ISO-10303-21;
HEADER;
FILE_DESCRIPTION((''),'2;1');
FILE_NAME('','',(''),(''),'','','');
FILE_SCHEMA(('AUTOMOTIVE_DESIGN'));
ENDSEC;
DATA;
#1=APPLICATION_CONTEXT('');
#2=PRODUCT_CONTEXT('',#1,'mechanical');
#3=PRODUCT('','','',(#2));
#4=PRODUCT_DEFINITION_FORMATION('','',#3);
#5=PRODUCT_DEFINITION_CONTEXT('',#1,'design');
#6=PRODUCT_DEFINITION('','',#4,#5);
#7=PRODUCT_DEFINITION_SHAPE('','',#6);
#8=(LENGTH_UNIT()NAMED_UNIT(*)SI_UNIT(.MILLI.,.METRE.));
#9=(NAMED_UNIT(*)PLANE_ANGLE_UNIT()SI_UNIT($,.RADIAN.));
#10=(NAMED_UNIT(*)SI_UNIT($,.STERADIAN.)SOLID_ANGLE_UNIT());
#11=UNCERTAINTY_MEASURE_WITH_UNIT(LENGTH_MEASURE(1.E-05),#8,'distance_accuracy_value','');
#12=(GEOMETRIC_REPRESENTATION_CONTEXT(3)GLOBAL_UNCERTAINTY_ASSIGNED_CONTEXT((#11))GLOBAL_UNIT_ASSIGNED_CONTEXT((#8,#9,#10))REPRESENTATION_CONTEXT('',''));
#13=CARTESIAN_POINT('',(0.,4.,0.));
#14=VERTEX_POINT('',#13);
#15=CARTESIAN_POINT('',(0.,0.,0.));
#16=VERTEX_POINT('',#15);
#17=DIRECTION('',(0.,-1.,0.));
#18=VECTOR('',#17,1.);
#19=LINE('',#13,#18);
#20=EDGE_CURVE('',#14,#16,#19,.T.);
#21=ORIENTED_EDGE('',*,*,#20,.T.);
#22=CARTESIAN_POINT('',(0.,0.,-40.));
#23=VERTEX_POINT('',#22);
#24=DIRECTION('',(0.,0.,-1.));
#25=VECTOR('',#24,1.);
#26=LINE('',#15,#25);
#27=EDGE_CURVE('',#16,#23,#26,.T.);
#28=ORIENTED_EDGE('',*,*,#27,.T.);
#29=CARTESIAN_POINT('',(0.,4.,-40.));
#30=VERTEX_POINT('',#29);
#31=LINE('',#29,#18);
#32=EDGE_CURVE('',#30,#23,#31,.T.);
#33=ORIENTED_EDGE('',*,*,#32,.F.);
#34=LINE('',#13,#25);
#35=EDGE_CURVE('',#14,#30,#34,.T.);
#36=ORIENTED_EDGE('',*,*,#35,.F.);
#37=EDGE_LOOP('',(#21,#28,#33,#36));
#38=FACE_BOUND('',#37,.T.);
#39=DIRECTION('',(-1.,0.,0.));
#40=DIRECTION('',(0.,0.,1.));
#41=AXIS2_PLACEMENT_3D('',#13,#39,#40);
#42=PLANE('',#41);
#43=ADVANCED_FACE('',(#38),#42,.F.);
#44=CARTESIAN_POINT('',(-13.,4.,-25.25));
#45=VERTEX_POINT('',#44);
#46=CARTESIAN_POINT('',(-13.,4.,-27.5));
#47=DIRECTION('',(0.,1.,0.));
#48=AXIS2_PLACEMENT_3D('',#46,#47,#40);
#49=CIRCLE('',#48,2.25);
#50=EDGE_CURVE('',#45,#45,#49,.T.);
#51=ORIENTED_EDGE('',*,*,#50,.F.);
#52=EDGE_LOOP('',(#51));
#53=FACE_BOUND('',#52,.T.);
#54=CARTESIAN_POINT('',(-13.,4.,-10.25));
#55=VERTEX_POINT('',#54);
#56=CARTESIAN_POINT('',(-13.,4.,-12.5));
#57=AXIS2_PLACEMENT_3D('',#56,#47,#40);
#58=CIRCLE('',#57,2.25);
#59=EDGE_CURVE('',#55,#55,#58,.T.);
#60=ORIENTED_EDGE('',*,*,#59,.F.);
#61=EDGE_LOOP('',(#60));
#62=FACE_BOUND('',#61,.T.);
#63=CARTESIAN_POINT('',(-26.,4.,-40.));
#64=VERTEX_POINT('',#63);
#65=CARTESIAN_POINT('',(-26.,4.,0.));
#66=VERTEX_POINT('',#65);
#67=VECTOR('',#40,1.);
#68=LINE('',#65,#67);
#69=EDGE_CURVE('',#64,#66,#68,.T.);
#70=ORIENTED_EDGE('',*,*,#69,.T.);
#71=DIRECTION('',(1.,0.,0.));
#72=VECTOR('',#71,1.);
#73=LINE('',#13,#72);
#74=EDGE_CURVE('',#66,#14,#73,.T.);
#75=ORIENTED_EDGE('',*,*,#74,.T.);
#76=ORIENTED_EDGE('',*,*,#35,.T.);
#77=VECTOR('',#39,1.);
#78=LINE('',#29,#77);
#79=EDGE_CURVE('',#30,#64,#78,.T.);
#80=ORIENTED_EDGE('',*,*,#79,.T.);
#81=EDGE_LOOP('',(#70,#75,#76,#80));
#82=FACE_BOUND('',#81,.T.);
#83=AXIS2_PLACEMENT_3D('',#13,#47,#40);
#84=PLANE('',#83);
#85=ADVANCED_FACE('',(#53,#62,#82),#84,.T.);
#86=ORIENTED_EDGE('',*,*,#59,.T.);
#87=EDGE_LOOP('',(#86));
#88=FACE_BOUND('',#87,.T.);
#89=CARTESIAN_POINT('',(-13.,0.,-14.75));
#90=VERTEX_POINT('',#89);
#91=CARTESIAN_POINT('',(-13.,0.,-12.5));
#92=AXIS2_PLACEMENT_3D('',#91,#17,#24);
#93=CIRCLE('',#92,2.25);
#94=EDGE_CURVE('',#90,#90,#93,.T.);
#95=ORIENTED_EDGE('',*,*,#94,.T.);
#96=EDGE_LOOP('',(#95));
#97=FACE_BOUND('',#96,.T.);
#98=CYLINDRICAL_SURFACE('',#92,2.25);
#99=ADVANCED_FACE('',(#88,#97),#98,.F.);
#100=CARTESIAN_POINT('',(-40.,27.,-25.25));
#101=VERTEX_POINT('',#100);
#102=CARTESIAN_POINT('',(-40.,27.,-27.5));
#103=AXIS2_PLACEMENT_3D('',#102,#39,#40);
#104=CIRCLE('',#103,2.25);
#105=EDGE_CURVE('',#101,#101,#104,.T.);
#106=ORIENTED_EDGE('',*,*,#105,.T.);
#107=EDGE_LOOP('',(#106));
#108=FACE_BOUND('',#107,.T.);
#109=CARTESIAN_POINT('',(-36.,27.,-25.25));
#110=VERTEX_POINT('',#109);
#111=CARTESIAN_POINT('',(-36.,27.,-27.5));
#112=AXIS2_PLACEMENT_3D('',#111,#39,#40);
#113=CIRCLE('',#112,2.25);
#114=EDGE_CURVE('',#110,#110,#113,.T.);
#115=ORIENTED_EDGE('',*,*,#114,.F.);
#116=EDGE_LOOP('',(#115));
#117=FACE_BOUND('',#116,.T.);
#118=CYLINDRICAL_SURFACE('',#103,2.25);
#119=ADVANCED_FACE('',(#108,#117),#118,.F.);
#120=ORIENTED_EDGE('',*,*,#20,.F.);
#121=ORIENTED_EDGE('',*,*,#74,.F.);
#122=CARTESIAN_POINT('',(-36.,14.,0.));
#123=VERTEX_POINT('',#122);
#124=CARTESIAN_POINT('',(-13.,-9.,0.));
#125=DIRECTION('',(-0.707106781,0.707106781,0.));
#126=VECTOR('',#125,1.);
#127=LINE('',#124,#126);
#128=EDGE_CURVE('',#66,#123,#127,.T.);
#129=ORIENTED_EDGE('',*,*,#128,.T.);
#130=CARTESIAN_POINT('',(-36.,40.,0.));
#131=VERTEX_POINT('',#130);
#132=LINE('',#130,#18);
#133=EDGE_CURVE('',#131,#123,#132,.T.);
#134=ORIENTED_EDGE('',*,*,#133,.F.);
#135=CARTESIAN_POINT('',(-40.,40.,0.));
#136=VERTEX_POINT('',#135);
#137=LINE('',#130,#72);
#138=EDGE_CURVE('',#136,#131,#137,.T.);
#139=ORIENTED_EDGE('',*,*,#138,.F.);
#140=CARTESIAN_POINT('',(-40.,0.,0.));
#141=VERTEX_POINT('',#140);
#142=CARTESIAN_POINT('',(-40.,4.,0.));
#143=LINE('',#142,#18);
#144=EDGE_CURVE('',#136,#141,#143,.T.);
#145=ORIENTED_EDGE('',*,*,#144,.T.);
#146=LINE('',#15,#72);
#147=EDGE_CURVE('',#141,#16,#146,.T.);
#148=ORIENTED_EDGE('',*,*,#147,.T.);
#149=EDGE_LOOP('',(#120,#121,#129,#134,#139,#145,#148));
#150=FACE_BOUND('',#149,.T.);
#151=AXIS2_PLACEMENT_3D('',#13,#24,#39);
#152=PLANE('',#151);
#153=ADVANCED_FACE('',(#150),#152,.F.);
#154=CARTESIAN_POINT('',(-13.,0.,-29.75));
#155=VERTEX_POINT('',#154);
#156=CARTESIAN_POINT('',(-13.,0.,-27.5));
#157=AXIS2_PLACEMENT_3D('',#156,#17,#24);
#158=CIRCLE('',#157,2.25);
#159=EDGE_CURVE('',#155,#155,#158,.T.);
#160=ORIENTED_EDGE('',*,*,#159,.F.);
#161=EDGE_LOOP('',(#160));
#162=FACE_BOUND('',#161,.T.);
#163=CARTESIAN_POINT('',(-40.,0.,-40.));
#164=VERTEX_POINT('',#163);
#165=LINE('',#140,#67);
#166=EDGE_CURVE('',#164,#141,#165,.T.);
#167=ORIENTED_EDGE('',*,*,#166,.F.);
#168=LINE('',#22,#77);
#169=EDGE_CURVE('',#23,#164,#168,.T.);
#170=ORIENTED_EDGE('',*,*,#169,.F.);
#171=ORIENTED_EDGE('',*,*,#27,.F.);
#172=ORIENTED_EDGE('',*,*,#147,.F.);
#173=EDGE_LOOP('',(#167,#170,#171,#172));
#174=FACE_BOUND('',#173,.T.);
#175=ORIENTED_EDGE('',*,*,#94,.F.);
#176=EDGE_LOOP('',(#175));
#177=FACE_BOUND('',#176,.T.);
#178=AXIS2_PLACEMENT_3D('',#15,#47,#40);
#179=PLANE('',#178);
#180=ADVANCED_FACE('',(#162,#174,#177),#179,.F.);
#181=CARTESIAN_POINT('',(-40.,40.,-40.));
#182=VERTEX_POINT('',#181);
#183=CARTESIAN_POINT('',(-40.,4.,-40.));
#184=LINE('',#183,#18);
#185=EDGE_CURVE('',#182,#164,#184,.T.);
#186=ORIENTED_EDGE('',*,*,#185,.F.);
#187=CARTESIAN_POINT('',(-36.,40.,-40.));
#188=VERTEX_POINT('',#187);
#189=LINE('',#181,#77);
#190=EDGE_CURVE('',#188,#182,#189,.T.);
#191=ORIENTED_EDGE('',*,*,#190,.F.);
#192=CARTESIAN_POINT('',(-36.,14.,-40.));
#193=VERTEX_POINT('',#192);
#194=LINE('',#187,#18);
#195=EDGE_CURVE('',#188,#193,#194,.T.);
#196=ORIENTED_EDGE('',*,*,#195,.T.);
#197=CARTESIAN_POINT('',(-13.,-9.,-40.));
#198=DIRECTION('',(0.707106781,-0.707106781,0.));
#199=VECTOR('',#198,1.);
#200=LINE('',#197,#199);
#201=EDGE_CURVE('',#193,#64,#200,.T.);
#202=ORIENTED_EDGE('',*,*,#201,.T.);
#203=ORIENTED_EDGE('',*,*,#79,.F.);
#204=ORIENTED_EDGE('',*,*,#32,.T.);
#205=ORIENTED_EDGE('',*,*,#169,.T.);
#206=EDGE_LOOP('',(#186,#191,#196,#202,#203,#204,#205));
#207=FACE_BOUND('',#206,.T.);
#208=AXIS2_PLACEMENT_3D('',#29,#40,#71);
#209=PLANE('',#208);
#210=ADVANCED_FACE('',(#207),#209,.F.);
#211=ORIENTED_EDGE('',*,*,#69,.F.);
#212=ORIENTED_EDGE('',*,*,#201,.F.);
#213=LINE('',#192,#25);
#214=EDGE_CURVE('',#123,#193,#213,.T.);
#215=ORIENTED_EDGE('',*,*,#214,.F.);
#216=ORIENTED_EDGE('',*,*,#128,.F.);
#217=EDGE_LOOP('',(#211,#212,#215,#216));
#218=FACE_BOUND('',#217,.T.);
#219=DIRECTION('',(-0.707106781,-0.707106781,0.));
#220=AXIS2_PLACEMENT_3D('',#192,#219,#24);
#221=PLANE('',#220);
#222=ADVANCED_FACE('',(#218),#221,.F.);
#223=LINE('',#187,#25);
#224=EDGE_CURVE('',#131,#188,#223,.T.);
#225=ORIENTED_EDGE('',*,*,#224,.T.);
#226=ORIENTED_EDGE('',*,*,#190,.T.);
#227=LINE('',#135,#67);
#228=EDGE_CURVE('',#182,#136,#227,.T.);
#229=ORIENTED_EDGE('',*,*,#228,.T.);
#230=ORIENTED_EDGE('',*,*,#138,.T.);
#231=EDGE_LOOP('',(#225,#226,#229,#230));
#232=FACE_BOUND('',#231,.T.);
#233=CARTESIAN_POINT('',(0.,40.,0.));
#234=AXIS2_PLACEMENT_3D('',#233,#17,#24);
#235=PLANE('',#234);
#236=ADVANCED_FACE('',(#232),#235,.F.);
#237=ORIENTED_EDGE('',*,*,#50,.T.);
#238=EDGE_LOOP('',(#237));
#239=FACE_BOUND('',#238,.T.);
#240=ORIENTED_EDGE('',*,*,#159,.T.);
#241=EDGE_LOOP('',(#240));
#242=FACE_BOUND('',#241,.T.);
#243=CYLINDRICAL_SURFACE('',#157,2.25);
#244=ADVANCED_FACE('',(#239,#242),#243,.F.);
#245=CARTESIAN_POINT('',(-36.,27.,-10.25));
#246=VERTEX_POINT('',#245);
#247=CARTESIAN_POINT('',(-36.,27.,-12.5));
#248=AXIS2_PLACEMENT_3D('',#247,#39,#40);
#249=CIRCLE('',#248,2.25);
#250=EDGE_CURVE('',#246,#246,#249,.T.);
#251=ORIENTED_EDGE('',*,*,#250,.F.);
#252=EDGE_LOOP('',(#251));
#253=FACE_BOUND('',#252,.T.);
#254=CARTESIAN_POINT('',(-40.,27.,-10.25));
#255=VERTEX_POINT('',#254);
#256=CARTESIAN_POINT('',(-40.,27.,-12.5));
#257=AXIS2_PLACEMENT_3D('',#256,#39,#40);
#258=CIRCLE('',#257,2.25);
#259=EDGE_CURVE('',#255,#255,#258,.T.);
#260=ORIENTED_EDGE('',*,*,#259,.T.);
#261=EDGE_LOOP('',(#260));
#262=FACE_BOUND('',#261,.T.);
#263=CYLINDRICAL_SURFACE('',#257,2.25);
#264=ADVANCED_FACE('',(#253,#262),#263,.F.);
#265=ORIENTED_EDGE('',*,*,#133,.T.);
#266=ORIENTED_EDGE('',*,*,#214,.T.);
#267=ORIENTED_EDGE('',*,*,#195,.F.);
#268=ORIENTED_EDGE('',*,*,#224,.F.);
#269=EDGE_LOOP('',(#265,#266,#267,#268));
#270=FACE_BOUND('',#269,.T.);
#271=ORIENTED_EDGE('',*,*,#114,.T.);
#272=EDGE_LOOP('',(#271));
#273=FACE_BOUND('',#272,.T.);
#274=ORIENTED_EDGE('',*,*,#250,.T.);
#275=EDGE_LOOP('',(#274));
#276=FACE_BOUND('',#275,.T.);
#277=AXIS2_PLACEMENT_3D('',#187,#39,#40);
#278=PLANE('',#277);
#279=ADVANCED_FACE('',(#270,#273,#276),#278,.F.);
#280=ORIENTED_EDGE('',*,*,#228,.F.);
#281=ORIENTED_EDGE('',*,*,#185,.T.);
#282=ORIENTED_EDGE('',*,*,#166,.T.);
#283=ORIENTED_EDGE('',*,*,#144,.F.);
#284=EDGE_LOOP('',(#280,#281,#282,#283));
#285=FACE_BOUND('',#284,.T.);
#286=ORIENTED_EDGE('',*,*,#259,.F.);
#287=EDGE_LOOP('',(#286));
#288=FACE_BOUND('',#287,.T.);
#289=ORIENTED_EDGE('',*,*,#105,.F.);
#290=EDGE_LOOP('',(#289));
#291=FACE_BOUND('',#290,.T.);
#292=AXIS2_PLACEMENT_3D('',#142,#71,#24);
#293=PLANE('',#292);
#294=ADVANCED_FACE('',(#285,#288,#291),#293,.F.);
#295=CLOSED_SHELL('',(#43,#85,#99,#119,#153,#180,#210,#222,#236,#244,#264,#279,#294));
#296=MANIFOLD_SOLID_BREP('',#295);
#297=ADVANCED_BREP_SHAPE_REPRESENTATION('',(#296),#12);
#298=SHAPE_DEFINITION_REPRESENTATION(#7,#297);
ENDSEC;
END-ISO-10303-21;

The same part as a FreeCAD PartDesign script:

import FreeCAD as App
import Part
import Sketcher
from FreeCAD import Vector
Q = App.Units.Quantity


def edges_at(feature, points):
    """Names of the edges that pass closest to the given points."""
    edges = feature.Shape.Edges
    near = lambda p: min(range(len(edges)), key=lambda i: edges[i].distToShape(Part.Vertex(*p))[0])
    return sorted({f"Edge{near(p) + 1}" for p in points})


def add_polygon(sketch, points):
    """Adds a closed chain of lines whose ends are joined by coincident constraints."""
    first, n = sketch.GeometryCount, len(points)
    for a, b in zip(points, points[1:] + points[:1]):
        sketch.addGeometry(Part.LineSegment(App.Vector(*a, 0), App.Vector(*b, 0)), False)
    for i in range(n):
        sketch.addConstraint(Sketcher.Constraint("Coincident", first + i, 2, first + (i + 1) % n, 1))

doc = App.newDocument("Part")
body = doc.addObject("PartDesign::Body", "Body")

# Sketch on XZ plane
sketch1 = body.newObject("Sketcher::SketchObject", "Sketch")
sketch1.AttachmentSupport = (doc.getObject("XZ_Plane"), [""])
sketch1.MapMode = "FlatFace"
add_polygon(sketch1, [(-40, -40), (-40, 0), (0, 0), (0, -40)])  # lines 0-3
sketch1.addConstraint(Sketcher.Constraint("Vertical", 0))
sketch1.addConstraint(Sketcher.Constraint("Horizontal", 1))
sketch1.addConstraint(Sketcher.Constraint("Vertical", 2))
sketch1.addConstraint(Sketcher.Constraint("Horizontal", 3))
sketch1.addConstraint(Sketcher.Constraint("Coincident", 1, 2, -1, 1))
sketch1.addConstraint(Sketcher.Constraint("Equal", 3, 0))
sketch1.addConstraint(Sketcher.Constraint("DistanceX", 1, 1, 1, 2, Q("40 mm")))
pad1 = body.newObject("PartDesign::Pad", "Pad")
pad1.Profile = sketch1
pad1.Length = 4
pad1.Reversed = True

# Sketch on XZ plane
sketch2 = body.newObject("Sketcher::SketchObject", "Sketch001")
sketch2.AttachmentSupport = (doc.getObject("XZ_Plane"), [""])
sketch2.MapMode = "FlatFace"
sketch2.AttachmentOffset = App.Placement(Vector(0, 0, -4), App.Rotation())
add_polygon(sketch2, [(-40, -40), (-40, 0), (-36, 0), (-36, -40)])  # lines 0-3
sketch2.addConstraint(Sketcher.Constraint("Vertical", 0))
sketch2.addConstraint(Sketcher.Constraint("Horizontal", 1))
sketch2.addConstraint(Sketcher.Constraint("Vertical", 2))
sketch2.addConstraint(Sketcher.Constraint("Horizontal", 3))
sketch2.addConstraint(Sketcher.Constraint("PointOnObject", 0, 2, -1))
sketch2.addConstraint(Sketcher.Constraint("DistanceX", 1, 1, 1, 2, Q("4 mm")))
sketch2.addConstraint(Sketcher.Constraint("DistanceY", 0, 1, 0, 2, Q("40 mm")))
sketch2.addConstraint(Sketcher.Constraint("DistanceX", 0, 2, -1, 1, Q("40 mm")))
pad2 = body.newObject("PartDesign::Pad", "Pad001")
pad2.Profile = sketch2
pad2.Length = 36
pad2.Reversed = True
doc.recompute()

chamfer = body.newObject("PartDesign::Chamfer", "Chamfer")
chamfer.Base = (pad2, edges_at(pad2, [(-36, 4, -20)]))
chamfer.Size = 10

# Sketch on XZ plane
sketch3 = body.newObject("Sketcher::SketchObject", "Sketch002")
sketch3.AttachmentSupport = (doc.getObject("XZ_Plane"), [""])
sketch3.MapMode = "FlatFace"
sketch3.addGeometry(Part.Circle(Vector(-13, -27.5, 0), Vector(0, 0, 1), 2.2), False)
sketch3.addGeometry(Part.Circle(Vector(-13, -12.5, 0), Vector(0, 0, 1), 2.2), False)
sketch3.addConstraint(Sketcher.Constraint("Equal", 0, 1))
sketch3.addConstraint(Sketcher.Constraint("Vertical", 0, 3, 1, 3))
sketch3.addConstraint(Sketcher.Constraint("Diameter", 0, Q("4.5 mm")))
sketch3.addConstraint(Sketcher.Constraint("DistanceX", 0, 3, -1, 1, Q("13 mm")))
sketch3.addConstraint(Sketcher.Constraint("DistanceY", 0, 3, 1, 3, Q("15 mm")))
sketch3.addConstraint(Sketcher.Constraint("DistanceY", 0, 3, -1, 1, Q("27.5 mm")))
doc.recompute()
hole = body.newObject("PartDesign::Hole", "Hole")
hole.Profile = sketch3
hole.ThreadType = "None"
hole.Diameter = 4.5
hole.DepthType = "Dimension"
hole.Depth = 9
hole.DrillPoint = "Angled"
hole.DrillPointAngle = 118

# Sketch on YZ plane
sketch4 = body.newObject("Sketcher::SketchObject", "Sketch003")
sketch4.AttachmentSupport = (doc.getObject("YZ_Plane"), [""])
sketch4.MapMode = "FlatFace"
sketch4.AttachmentOffset = App.Placement(Vector(0, 0, -40), App.Rotation())
sketch4.addGeometry(Part.Circle(Vector(27, -27.5, 0), Vector(0, 0, 1), 2.2), False)
sketch4.addGeometry(Part.Circle(Vector(27, -12.5, 0), Vector(0, 0, 1), 2.2), False)
sketch4.addConstraint(Sketcher.Constraint("Equal", 0, 1))
sketch4.addConstraint(Sketcher.Constraint("Vertical", 0, 3, 1, 3))
sketch4.addConstraint(Sketcher.Constraint("Diameter", 0, Q("4.5 mm")))
sketch4.addConstraint(Sketcher.Constraint("DistanceX", -1, 1, 0, 3, Q("27 mm")))
sketch4.addConstraint(Sketcher.Constraint("DistanceY", 0, 3, 1, 3, Q("15 mm")))
sketch4.addConstraint(Sketcher.Constraint("DistanceY", 0, 3, -1, 1, Q("27.5 mm")))
doc.recompute()
hole2 = body.newObject("PartDesign::Hole", "Hole001")
hole2.Profile = sketch4
hole2.ThreadType = "None"
hole2.Diameter = 4.5
hole2.DepthType = "Dimension"
hole2.Depth = 9
hole2.DrillPoint = "Angled"
hole2.DrillPointAngle = 118
hole2.Reversed = True

doc.recompute()
